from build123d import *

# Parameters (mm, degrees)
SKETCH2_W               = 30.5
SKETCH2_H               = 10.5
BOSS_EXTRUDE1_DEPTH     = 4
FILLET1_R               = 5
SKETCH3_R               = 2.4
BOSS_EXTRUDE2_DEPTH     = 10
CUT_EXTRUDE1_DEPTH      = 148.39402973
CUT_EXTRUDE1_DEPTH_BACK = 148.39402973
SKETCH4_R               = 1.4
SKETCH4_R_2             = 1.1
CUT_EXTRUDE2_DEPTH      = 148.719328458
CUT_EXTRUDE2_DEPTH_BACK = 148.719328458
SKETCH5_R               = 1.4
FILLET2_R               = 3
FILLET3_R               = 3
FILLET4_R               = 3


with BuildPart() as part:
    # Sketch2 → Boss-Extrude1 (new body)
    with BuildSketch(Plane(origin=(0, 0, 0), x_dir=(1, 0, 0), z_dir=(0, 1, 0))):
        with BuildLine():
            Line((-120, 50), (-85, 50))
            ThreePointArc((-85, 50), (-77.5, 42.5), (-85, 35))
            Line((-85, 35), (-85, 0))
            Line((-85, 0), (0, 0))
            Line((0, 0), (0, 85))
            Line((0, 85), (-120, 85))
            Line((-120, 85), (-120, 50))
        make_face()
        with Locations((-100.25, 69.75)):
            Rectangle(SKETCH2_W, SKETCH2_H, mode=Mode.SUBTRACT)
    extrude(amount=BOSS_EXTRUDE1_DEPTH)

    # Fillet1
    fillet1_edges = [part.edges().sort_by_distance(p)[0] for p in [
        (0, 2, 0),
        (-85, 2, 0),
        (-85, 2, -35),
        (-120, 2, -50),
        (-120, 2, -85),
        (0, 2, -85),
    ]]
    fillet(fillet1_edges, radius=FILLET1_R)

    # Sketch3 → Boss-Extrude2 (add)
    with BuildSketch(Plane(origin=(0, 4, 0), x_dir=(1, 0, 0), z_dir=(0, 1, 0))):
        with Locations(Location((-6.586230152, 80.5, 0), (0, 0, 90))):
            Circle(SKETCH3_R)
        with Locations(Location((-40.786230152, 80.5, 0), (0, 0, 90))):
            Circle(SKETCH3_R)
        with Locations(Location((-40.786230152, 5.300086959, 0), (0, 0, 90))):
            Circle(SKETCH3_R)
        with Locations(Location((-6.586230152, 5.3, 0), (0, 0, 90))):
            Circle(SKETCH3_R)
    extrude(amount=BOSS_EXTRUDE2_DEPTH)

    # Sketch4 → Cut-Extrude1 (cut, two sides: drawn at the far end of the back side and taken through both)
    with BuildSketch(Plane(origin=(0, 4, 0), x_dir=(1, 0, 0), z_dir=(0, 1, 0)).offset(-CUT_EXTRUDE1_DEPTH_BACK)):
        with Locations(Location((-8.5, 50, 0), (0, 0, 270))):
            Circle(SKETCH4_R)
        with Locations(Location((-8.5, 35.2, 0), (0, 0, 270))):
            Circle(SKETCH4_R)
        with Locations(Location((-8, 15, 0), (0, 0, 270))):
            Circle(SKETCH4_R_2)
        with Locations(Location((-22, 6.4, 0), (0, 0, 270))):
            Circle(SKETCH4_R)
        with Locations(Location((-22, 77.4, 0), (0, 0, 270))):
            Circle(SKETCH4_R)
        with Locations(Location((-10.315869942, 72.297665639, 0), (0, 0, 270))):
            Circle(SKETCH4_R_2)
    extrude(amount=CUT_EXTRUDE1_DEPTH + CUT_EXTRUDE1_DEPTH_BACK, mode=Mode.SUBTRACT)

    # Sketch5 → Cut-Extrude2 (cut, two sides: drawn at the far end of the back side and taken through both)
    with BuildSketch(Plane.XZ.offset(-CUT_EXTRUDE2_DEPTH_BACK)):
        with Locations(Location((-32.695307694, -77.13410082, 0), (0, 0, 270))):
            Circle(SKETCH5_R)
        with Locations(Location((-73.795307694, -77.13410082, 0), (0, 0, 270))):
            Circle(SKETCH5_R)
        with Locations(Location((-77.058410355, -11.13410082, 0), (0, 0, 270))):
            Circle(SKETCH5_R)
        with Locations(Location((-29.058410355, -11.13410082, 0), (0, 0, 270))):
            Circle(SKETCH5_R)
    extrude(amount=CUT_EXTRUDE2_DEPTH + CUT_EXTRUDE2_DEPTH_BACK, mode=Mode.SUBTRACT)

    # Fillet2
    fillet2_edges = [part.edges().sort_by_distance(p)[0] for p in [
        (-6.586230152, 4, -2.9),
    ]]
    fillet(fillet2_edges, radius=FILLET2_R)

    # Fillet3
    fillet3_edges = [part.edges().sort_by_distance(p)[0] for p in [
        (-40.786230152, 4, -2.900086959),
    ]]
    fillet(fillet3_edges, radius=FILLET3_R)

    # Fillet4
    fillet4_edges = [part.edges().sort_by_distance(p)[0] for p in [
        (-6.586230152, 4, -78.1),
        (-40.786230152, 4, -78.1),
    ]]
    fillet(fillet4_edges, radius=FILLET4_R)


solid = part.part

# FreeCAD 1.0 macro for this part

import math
import FreeCAD as App
import Part
import Sketcher


def edges_at(feature, points):
    """Names of the edges that pass closest to the given points."""
    edges = feature.Shape.Edges
    near = lambda p: min(range(len(edges)), key=lambda i: edges[i].distToShape(Part.Vertex(*p))[0])
    return sorted({f"Edge{near(p) + 1}" for p in points})

doc = App.newDocument("Part")
body = doc.addObject("PartDesign::Body", "Body")

# Sketch on XZ plane
sketch1 = doc.addObject("Sketcher::SketchObject", "Sketch")
body.addObject(sketch1)
sketch1.AttachmentSupport = (doc.XZ_Plane, [""])
sketch1.MapMode = "FlatFace"
sketch1.addGeometry([
    Part.LineSegment(App.Vector(-120, -50, 0), App.Vector(-85, -50, 0)),  # 0
    Part.ArcOfCircle(Part.Circle(App.Vector(-85, -42, 0), App.Vector(0, 0, 1), 8), math.radians(-90), math.radians(90)),  # 1
    Part.LineSegment(App.Vector(-85, -35, 0), App.Vector(-85, 0, 0)),  # 2
    Part.LineSegment(App.Vector(-85, 0, 0), App.Vector(0, 0, 0)),  # 3
    Part.LineSegment(App.Vector(0, 0, 0), App.Vector(0, -85, 0)),  # 4
    Part.LineSegment(App.Vector(0, -85, 0), App.Vector(-120, -85, 0)),  # 5
    Part.LineSegment(App.Vector(-120, -85, 0), App.Vector(-120, -50, 0)),  # 6
    Part.LineSegment(App.Vector(-85, -64, 0), App.Vector(-116, -64, 0)),  # 7
    Part.LineSegment(App.Vector(-116, -64, 0), App.Vector(-116, -75, 0)),  # 8
    Part.LineSegment(App.Vector(-116, -75, 0), App.Vector(-85, -75, 0)),  # 9
    Part.LineSegment(App.Vector(-85, -75, 0), App.Vector(-85, -64, 0)),  # 10
], False)
sketch1.addConstraint([
    Sketcher.Constraint("Tangent", 0, 2, 1, 1),
    Sketcher.Constraint("Coincident", 1, 2, 2, 1),
    Sketcher.Constraint("Coincident", 2, 2, 3, 1),
    Sketcher.Constraint("Coincident", 3, 2, 4, 1),
    Sketcher.Constraint("Coincident", 4, 2, 5, 1),
    Sketcher.Constraint("Coincident", 5, 2, 6, 1),
    Sketcher.Constraint("Coincident", 6, 2, 0, 1),
    Sketcher.Constraint("Coincident", 7, 2, 8, 1),
    Sketcher.Constraint("Coincident", 8, 2, 9, 1),
    Sketcher.Constraint("Coincident", 9, 2, 10, 1),
    Sketcher.Constraint("Coincident", 10, 2, 7, 1),
    Sketcher.Constraint("Horizontal", 0),
    Sketcher.Constraint("Vertical", 2),
    Sketcher.Constraint("Horizontal", 3),
    Sketcher.Constraint("Vertical", 4),
    Sketcher.Constraint("Horizontal", 5),
    Sketcher.Constraint("Vertical", 6),
    Sketcher.Constraint("Horizontal", 7),
    Sketcher.Constraint("Vertical", 8),
    Sketcher.Constraint("Horizontal", 9),
    Sketcher.Constraint("Vertical", 10),
    Sketcher.Constraint("Coincident", 3, 2, -1, 1),
    Sketcher.Constraint("Vertical", 0, 2, 1, 2),
    Sketcher.Constraint("Vertical", 2, 2, 9, 2),
    Sketcher.Constraint("Equal", 0, 2),
    Sketcher.Constraint("Equal", 3, 4),
    Sketcher.Constraint("Equal", 2, 6),
    Sketcher.Constraint("Radius", 1, 7.5),
    Sketcher.Constraint("DistanceX", 0, 1, 0, 2, 35.0),
    Sketcher.Constraint("DistanceX", 7, 2, 7, 1, 30.5),
    Sketcher.Constraint("DistanceY", 8, 2, 8, 1, 10.5),
    Sketcher.Constraint("DistanceY", 8, 2, -1, 1, 75.0),
])
pad1 = doc.addObject("PartDesign::Pad", "Pad")
body.addObject(pad1)
pad1.Profile = sketch1
pad1.Length = 4
pad1.Reversed = True
doc.recompute()

fillet = doc.addObject("PartDesign::Fillet", "Fillet")
body.addObject(fillet)
fillet.Base = (pad1, edges_at(pad1, [
    (0, 2, 0),
    (-85, 2, 0),
    (-85, 2, -35),
    (-120, 2, -50),
    (-120, 2, -85),
    (0, 2, -85),
]))
fillet.Radius = 5

# Sketch on XZ plane
sketch2 = doc.addObject("Sketcher::SketchObject", "Sketch001")
body.addObject(sketch2)
sketch2.AttachmentSupport = (doc.XZ_Plane, [""])
sketch2.MapMode = "FlatFace"
sketch2.AttachmentOffset = App.Placement(App.Vector(0, 0, -4), App.Rotation())
sketch2.addGeometry([
    Part.Circle(App.Vector(-6.6, -80.5, 0), App.Vector(0, 0, 1), 2.4),
    Part.Circle(App.Vector(-40.8, -80.5, 0), App.Vector(0, 0, 1), 2.4),
    Part.Circle(App.Vector(-40.8, -5.3, 0), App.Vector(0, 0, 1), 2.4),
    Part.Circle(App.Vector(-6.6, -5.3, 0), App.Vector(0, 0, 1), 2.4),
], False)
sketch2.addConstraint([
    Sketcher.Constraint("Equal", 0, 1),
    Sketcher.Constraint("Equal", 1, 2),
    Sketcher.Constraint("Equal", 2, 3),
    Sketcher.Constraint("Horizontal", 0, 3, 1, 3),
    Sketcher.Constraint("Vertical", 1, 3, 2, 3),
    Sketcher.Constraint("Vertical", 0, 3, 3, 3),
    Sketcher.Constraint("Diameter", 0, 4.8),
    Sketcher.Constraint("DistanceY", 0, 3, -1, 1, 80.5),
    Sketcher.Constraint("DistanceY", 3, 3, -1, 1, 5.3),
    Sketcher.Constraint("DistanceX", 1, 3, 0, 3, 34.2),
    Sketcher.Constraint("DistanceX", 0, 3, -1, 1, 6.58623),
    Sketcher.Constraint("DistanceY", 2, 3, -1, 1, 5.300087),
])
pad2 = doc.addObject("PartDesign::Pad", "Pad001")
body.addObject(pad2)
pad2.Profile = sketch2
pad2.Length = 10
pad2.Reversed = True

# Sketch on XZ plane
sketch3 = doc.addObject("Sketcher::SketchObject", "Sketch002")
body.addObject(sketch3)
sketch3.AttachmentSupport = (doc.XZ_Plane, [""])
sketch3.MapMode = "FlatFace"
sketch3.AttachmentOffset = App.Placement(App.Vector(0, 0, -4), App.Rotation())
sketch3.addGeometry([
    Part.Circle(App.Vector(-8.5, -50, 0), App.Vector(0, 0, 1), 1.4),  # 0
    Part.Circle(App.Vector(-8.5, -35.2, 0), App.Vector(0, 0, 1), 1.4),  # 1
    Part.Circle(App.Vector(-8, -15, 0), App.Vector(0, 0, 1), 1.1),  # 2
    Part.Circle(App.Vector(-22, -6.4, 0), App.Vector(0, 0, 1), 1.4),  # 3
    Part.Circle(App.Vector(-22, -77.4, 0), App.Vector(0, 0, 1), 1.4),  # 4
    Part.Circle(App.Vector(-10.3, -72.3, 0), App.Vector(0, 0, 1), 1.1),  # 5
], False)
sketch3.addConstraint([
    Sketcher.Constraint("Equal", 0, 1),
    Sketcher.Constraint("Equal", 1, 3),
    Sketcher.Constraint("Equal", 3, 4),
    Sketcher.Constraint("Equal", 2, 5),
    Sketcher.Constraint("Vertical", 0, 3, 1, 3),
    Sketcher.Constraint("Vertical", 3, 3, 4, 3),
    Sketcher.Constraint("Diameter", 0, 2.8),
    Sketcher.Constraint("Diameter", 2, 2.2),
    Sketcher.Constraint("DistanceY", 0, 3, -1, 1, 50.0),
    Sketcher.Constraint("DistanceX", 2, 3, -1, 1, 8.0),
    Sketcher.Constraint("DistanceY", 2, 3, -1, 1, 15.0),
    Sketcher.Constraint("DistanceX", 3, 3, -1, 1, 22.0),
    Sketcher.Constraint("DistanceY", 4, 3, 3, 3, 71.0),
    Sketcher.Constraint("DistanceX", 0, 3, -1, 1, 8.5),
    Sketcher.Constraint("DistanceY", 1, 3, -1, 1, 35.2),
    Sketcher.Constraint("DistanceY", 3, 3, -1, 1, 6.4),
    Sketcher.Constraint("DistanceX", 5, 3, -1, 1, 10.31587),
    Sketcher.Constraint("DistanceY", 5, 3, -1, 1, 72.297666),
])
pocket1 = doc.addObject("PartDesign::Pocket", "Pocket")
body.addObject(pocket1)
pocket1.Profile = sketch3
pocket1.Type = "ThroughAll"
pocket1.Midplane = True

# Sketch on XZ plane
sketch4 = doc.addObject("Sketcher::SketchObject", "Sketch003")
body.addObject(sketch4)
sketch4.AttachmentSupport = (doc.XZ_Plane, [""])
sketch4.MapMode = "FlatFace"
sketch4.addGeometry([
    Part.Circle(App.Vector(-32.7, -77.1, 0), App.Vector(0, 0, 1), 1.4),
    Part.Circle(App.Vector(-73.8, -77.1, 0), App.Vector(0, 0, 1), 1.4),
    Part.Circle(App.Vector(-77.1, -11.1, 0), App.Vector(0, 0, 1), 1.4),
    Part.Circle(App.Vector(-29.1, -11.1, 0), App.Vector(0, 0, 1), 1.4),
], False)
sketch4.addConstraint([
    Sketcher.Constraint("Equal", 0, 1),
    Sketcher.Constraint("Equal", 1, 2),
    Sketcher.Constraint("Equal", 2, 3),
    Sketcher.Constraint("Horizontal", 0, 3, 1, 3),
    Sketcher.Constraint("Horizontal", 2, 3, 3, 3),
    Sketcher.Constraint("Diameter", 0, 2.8),
    Sketcher.Constraint("DistanceY", 1, 3, 2, 3, 66.0),
    Sketcher.Constraint("DistanceX", 2, 3, 3, 3, 48.0),
    Sketcher.Constraint("DistanceX", 1, 3, 0, 3, 41.1),
    Sketcher.Constraint("DistanceY", 0, 3, -1, 1, 77.134101),
    Sketcher.Constraint("DistanceX", 2, 3, -1, 1, 77.05841),
    Sketcher.Constraint("DistanceX", 0, 3, -1, 1, 32.695308),
])
pocket2 = doc.addObject("PartDesign::Pocket", "Pocket001")
body.addObject(pocket2)
pocket2.Profile = sketch4
pocket2.Type = "ThroughAll"
pocket2.Midplane = True
doc.recompute()

fillet2 = doc.addObject("PartDesign::Fillet", "Fillet001")
body.addObject(fillet2)
fillet2.Base = (pocket2, edges_at(pocket2, [(-6.586, 4, -2.9)]))
fillet2.Radius = 3
doc.recompute()

fillet3 = doc.addObject("PartDesign::Fillet", "Fillet002")
body.addObject(fillet3)
fillet3.Base = (fillet2, edges_at(fillet2, [(-40.786, 4, -2.9)]))
fillet3.Radius = 3
doc.recompute()

fillet4 = doc.addObject("PartDesign::Fillet", "Fillet003")
body.addObject(fillet4)
fillet4.Base = (fillet3, edges_at(fillet3, [(-6.586, 4, -78.1), (-40.786, 4, -78.1)]))
fillet4.Radius = 3

doc.recompute()
